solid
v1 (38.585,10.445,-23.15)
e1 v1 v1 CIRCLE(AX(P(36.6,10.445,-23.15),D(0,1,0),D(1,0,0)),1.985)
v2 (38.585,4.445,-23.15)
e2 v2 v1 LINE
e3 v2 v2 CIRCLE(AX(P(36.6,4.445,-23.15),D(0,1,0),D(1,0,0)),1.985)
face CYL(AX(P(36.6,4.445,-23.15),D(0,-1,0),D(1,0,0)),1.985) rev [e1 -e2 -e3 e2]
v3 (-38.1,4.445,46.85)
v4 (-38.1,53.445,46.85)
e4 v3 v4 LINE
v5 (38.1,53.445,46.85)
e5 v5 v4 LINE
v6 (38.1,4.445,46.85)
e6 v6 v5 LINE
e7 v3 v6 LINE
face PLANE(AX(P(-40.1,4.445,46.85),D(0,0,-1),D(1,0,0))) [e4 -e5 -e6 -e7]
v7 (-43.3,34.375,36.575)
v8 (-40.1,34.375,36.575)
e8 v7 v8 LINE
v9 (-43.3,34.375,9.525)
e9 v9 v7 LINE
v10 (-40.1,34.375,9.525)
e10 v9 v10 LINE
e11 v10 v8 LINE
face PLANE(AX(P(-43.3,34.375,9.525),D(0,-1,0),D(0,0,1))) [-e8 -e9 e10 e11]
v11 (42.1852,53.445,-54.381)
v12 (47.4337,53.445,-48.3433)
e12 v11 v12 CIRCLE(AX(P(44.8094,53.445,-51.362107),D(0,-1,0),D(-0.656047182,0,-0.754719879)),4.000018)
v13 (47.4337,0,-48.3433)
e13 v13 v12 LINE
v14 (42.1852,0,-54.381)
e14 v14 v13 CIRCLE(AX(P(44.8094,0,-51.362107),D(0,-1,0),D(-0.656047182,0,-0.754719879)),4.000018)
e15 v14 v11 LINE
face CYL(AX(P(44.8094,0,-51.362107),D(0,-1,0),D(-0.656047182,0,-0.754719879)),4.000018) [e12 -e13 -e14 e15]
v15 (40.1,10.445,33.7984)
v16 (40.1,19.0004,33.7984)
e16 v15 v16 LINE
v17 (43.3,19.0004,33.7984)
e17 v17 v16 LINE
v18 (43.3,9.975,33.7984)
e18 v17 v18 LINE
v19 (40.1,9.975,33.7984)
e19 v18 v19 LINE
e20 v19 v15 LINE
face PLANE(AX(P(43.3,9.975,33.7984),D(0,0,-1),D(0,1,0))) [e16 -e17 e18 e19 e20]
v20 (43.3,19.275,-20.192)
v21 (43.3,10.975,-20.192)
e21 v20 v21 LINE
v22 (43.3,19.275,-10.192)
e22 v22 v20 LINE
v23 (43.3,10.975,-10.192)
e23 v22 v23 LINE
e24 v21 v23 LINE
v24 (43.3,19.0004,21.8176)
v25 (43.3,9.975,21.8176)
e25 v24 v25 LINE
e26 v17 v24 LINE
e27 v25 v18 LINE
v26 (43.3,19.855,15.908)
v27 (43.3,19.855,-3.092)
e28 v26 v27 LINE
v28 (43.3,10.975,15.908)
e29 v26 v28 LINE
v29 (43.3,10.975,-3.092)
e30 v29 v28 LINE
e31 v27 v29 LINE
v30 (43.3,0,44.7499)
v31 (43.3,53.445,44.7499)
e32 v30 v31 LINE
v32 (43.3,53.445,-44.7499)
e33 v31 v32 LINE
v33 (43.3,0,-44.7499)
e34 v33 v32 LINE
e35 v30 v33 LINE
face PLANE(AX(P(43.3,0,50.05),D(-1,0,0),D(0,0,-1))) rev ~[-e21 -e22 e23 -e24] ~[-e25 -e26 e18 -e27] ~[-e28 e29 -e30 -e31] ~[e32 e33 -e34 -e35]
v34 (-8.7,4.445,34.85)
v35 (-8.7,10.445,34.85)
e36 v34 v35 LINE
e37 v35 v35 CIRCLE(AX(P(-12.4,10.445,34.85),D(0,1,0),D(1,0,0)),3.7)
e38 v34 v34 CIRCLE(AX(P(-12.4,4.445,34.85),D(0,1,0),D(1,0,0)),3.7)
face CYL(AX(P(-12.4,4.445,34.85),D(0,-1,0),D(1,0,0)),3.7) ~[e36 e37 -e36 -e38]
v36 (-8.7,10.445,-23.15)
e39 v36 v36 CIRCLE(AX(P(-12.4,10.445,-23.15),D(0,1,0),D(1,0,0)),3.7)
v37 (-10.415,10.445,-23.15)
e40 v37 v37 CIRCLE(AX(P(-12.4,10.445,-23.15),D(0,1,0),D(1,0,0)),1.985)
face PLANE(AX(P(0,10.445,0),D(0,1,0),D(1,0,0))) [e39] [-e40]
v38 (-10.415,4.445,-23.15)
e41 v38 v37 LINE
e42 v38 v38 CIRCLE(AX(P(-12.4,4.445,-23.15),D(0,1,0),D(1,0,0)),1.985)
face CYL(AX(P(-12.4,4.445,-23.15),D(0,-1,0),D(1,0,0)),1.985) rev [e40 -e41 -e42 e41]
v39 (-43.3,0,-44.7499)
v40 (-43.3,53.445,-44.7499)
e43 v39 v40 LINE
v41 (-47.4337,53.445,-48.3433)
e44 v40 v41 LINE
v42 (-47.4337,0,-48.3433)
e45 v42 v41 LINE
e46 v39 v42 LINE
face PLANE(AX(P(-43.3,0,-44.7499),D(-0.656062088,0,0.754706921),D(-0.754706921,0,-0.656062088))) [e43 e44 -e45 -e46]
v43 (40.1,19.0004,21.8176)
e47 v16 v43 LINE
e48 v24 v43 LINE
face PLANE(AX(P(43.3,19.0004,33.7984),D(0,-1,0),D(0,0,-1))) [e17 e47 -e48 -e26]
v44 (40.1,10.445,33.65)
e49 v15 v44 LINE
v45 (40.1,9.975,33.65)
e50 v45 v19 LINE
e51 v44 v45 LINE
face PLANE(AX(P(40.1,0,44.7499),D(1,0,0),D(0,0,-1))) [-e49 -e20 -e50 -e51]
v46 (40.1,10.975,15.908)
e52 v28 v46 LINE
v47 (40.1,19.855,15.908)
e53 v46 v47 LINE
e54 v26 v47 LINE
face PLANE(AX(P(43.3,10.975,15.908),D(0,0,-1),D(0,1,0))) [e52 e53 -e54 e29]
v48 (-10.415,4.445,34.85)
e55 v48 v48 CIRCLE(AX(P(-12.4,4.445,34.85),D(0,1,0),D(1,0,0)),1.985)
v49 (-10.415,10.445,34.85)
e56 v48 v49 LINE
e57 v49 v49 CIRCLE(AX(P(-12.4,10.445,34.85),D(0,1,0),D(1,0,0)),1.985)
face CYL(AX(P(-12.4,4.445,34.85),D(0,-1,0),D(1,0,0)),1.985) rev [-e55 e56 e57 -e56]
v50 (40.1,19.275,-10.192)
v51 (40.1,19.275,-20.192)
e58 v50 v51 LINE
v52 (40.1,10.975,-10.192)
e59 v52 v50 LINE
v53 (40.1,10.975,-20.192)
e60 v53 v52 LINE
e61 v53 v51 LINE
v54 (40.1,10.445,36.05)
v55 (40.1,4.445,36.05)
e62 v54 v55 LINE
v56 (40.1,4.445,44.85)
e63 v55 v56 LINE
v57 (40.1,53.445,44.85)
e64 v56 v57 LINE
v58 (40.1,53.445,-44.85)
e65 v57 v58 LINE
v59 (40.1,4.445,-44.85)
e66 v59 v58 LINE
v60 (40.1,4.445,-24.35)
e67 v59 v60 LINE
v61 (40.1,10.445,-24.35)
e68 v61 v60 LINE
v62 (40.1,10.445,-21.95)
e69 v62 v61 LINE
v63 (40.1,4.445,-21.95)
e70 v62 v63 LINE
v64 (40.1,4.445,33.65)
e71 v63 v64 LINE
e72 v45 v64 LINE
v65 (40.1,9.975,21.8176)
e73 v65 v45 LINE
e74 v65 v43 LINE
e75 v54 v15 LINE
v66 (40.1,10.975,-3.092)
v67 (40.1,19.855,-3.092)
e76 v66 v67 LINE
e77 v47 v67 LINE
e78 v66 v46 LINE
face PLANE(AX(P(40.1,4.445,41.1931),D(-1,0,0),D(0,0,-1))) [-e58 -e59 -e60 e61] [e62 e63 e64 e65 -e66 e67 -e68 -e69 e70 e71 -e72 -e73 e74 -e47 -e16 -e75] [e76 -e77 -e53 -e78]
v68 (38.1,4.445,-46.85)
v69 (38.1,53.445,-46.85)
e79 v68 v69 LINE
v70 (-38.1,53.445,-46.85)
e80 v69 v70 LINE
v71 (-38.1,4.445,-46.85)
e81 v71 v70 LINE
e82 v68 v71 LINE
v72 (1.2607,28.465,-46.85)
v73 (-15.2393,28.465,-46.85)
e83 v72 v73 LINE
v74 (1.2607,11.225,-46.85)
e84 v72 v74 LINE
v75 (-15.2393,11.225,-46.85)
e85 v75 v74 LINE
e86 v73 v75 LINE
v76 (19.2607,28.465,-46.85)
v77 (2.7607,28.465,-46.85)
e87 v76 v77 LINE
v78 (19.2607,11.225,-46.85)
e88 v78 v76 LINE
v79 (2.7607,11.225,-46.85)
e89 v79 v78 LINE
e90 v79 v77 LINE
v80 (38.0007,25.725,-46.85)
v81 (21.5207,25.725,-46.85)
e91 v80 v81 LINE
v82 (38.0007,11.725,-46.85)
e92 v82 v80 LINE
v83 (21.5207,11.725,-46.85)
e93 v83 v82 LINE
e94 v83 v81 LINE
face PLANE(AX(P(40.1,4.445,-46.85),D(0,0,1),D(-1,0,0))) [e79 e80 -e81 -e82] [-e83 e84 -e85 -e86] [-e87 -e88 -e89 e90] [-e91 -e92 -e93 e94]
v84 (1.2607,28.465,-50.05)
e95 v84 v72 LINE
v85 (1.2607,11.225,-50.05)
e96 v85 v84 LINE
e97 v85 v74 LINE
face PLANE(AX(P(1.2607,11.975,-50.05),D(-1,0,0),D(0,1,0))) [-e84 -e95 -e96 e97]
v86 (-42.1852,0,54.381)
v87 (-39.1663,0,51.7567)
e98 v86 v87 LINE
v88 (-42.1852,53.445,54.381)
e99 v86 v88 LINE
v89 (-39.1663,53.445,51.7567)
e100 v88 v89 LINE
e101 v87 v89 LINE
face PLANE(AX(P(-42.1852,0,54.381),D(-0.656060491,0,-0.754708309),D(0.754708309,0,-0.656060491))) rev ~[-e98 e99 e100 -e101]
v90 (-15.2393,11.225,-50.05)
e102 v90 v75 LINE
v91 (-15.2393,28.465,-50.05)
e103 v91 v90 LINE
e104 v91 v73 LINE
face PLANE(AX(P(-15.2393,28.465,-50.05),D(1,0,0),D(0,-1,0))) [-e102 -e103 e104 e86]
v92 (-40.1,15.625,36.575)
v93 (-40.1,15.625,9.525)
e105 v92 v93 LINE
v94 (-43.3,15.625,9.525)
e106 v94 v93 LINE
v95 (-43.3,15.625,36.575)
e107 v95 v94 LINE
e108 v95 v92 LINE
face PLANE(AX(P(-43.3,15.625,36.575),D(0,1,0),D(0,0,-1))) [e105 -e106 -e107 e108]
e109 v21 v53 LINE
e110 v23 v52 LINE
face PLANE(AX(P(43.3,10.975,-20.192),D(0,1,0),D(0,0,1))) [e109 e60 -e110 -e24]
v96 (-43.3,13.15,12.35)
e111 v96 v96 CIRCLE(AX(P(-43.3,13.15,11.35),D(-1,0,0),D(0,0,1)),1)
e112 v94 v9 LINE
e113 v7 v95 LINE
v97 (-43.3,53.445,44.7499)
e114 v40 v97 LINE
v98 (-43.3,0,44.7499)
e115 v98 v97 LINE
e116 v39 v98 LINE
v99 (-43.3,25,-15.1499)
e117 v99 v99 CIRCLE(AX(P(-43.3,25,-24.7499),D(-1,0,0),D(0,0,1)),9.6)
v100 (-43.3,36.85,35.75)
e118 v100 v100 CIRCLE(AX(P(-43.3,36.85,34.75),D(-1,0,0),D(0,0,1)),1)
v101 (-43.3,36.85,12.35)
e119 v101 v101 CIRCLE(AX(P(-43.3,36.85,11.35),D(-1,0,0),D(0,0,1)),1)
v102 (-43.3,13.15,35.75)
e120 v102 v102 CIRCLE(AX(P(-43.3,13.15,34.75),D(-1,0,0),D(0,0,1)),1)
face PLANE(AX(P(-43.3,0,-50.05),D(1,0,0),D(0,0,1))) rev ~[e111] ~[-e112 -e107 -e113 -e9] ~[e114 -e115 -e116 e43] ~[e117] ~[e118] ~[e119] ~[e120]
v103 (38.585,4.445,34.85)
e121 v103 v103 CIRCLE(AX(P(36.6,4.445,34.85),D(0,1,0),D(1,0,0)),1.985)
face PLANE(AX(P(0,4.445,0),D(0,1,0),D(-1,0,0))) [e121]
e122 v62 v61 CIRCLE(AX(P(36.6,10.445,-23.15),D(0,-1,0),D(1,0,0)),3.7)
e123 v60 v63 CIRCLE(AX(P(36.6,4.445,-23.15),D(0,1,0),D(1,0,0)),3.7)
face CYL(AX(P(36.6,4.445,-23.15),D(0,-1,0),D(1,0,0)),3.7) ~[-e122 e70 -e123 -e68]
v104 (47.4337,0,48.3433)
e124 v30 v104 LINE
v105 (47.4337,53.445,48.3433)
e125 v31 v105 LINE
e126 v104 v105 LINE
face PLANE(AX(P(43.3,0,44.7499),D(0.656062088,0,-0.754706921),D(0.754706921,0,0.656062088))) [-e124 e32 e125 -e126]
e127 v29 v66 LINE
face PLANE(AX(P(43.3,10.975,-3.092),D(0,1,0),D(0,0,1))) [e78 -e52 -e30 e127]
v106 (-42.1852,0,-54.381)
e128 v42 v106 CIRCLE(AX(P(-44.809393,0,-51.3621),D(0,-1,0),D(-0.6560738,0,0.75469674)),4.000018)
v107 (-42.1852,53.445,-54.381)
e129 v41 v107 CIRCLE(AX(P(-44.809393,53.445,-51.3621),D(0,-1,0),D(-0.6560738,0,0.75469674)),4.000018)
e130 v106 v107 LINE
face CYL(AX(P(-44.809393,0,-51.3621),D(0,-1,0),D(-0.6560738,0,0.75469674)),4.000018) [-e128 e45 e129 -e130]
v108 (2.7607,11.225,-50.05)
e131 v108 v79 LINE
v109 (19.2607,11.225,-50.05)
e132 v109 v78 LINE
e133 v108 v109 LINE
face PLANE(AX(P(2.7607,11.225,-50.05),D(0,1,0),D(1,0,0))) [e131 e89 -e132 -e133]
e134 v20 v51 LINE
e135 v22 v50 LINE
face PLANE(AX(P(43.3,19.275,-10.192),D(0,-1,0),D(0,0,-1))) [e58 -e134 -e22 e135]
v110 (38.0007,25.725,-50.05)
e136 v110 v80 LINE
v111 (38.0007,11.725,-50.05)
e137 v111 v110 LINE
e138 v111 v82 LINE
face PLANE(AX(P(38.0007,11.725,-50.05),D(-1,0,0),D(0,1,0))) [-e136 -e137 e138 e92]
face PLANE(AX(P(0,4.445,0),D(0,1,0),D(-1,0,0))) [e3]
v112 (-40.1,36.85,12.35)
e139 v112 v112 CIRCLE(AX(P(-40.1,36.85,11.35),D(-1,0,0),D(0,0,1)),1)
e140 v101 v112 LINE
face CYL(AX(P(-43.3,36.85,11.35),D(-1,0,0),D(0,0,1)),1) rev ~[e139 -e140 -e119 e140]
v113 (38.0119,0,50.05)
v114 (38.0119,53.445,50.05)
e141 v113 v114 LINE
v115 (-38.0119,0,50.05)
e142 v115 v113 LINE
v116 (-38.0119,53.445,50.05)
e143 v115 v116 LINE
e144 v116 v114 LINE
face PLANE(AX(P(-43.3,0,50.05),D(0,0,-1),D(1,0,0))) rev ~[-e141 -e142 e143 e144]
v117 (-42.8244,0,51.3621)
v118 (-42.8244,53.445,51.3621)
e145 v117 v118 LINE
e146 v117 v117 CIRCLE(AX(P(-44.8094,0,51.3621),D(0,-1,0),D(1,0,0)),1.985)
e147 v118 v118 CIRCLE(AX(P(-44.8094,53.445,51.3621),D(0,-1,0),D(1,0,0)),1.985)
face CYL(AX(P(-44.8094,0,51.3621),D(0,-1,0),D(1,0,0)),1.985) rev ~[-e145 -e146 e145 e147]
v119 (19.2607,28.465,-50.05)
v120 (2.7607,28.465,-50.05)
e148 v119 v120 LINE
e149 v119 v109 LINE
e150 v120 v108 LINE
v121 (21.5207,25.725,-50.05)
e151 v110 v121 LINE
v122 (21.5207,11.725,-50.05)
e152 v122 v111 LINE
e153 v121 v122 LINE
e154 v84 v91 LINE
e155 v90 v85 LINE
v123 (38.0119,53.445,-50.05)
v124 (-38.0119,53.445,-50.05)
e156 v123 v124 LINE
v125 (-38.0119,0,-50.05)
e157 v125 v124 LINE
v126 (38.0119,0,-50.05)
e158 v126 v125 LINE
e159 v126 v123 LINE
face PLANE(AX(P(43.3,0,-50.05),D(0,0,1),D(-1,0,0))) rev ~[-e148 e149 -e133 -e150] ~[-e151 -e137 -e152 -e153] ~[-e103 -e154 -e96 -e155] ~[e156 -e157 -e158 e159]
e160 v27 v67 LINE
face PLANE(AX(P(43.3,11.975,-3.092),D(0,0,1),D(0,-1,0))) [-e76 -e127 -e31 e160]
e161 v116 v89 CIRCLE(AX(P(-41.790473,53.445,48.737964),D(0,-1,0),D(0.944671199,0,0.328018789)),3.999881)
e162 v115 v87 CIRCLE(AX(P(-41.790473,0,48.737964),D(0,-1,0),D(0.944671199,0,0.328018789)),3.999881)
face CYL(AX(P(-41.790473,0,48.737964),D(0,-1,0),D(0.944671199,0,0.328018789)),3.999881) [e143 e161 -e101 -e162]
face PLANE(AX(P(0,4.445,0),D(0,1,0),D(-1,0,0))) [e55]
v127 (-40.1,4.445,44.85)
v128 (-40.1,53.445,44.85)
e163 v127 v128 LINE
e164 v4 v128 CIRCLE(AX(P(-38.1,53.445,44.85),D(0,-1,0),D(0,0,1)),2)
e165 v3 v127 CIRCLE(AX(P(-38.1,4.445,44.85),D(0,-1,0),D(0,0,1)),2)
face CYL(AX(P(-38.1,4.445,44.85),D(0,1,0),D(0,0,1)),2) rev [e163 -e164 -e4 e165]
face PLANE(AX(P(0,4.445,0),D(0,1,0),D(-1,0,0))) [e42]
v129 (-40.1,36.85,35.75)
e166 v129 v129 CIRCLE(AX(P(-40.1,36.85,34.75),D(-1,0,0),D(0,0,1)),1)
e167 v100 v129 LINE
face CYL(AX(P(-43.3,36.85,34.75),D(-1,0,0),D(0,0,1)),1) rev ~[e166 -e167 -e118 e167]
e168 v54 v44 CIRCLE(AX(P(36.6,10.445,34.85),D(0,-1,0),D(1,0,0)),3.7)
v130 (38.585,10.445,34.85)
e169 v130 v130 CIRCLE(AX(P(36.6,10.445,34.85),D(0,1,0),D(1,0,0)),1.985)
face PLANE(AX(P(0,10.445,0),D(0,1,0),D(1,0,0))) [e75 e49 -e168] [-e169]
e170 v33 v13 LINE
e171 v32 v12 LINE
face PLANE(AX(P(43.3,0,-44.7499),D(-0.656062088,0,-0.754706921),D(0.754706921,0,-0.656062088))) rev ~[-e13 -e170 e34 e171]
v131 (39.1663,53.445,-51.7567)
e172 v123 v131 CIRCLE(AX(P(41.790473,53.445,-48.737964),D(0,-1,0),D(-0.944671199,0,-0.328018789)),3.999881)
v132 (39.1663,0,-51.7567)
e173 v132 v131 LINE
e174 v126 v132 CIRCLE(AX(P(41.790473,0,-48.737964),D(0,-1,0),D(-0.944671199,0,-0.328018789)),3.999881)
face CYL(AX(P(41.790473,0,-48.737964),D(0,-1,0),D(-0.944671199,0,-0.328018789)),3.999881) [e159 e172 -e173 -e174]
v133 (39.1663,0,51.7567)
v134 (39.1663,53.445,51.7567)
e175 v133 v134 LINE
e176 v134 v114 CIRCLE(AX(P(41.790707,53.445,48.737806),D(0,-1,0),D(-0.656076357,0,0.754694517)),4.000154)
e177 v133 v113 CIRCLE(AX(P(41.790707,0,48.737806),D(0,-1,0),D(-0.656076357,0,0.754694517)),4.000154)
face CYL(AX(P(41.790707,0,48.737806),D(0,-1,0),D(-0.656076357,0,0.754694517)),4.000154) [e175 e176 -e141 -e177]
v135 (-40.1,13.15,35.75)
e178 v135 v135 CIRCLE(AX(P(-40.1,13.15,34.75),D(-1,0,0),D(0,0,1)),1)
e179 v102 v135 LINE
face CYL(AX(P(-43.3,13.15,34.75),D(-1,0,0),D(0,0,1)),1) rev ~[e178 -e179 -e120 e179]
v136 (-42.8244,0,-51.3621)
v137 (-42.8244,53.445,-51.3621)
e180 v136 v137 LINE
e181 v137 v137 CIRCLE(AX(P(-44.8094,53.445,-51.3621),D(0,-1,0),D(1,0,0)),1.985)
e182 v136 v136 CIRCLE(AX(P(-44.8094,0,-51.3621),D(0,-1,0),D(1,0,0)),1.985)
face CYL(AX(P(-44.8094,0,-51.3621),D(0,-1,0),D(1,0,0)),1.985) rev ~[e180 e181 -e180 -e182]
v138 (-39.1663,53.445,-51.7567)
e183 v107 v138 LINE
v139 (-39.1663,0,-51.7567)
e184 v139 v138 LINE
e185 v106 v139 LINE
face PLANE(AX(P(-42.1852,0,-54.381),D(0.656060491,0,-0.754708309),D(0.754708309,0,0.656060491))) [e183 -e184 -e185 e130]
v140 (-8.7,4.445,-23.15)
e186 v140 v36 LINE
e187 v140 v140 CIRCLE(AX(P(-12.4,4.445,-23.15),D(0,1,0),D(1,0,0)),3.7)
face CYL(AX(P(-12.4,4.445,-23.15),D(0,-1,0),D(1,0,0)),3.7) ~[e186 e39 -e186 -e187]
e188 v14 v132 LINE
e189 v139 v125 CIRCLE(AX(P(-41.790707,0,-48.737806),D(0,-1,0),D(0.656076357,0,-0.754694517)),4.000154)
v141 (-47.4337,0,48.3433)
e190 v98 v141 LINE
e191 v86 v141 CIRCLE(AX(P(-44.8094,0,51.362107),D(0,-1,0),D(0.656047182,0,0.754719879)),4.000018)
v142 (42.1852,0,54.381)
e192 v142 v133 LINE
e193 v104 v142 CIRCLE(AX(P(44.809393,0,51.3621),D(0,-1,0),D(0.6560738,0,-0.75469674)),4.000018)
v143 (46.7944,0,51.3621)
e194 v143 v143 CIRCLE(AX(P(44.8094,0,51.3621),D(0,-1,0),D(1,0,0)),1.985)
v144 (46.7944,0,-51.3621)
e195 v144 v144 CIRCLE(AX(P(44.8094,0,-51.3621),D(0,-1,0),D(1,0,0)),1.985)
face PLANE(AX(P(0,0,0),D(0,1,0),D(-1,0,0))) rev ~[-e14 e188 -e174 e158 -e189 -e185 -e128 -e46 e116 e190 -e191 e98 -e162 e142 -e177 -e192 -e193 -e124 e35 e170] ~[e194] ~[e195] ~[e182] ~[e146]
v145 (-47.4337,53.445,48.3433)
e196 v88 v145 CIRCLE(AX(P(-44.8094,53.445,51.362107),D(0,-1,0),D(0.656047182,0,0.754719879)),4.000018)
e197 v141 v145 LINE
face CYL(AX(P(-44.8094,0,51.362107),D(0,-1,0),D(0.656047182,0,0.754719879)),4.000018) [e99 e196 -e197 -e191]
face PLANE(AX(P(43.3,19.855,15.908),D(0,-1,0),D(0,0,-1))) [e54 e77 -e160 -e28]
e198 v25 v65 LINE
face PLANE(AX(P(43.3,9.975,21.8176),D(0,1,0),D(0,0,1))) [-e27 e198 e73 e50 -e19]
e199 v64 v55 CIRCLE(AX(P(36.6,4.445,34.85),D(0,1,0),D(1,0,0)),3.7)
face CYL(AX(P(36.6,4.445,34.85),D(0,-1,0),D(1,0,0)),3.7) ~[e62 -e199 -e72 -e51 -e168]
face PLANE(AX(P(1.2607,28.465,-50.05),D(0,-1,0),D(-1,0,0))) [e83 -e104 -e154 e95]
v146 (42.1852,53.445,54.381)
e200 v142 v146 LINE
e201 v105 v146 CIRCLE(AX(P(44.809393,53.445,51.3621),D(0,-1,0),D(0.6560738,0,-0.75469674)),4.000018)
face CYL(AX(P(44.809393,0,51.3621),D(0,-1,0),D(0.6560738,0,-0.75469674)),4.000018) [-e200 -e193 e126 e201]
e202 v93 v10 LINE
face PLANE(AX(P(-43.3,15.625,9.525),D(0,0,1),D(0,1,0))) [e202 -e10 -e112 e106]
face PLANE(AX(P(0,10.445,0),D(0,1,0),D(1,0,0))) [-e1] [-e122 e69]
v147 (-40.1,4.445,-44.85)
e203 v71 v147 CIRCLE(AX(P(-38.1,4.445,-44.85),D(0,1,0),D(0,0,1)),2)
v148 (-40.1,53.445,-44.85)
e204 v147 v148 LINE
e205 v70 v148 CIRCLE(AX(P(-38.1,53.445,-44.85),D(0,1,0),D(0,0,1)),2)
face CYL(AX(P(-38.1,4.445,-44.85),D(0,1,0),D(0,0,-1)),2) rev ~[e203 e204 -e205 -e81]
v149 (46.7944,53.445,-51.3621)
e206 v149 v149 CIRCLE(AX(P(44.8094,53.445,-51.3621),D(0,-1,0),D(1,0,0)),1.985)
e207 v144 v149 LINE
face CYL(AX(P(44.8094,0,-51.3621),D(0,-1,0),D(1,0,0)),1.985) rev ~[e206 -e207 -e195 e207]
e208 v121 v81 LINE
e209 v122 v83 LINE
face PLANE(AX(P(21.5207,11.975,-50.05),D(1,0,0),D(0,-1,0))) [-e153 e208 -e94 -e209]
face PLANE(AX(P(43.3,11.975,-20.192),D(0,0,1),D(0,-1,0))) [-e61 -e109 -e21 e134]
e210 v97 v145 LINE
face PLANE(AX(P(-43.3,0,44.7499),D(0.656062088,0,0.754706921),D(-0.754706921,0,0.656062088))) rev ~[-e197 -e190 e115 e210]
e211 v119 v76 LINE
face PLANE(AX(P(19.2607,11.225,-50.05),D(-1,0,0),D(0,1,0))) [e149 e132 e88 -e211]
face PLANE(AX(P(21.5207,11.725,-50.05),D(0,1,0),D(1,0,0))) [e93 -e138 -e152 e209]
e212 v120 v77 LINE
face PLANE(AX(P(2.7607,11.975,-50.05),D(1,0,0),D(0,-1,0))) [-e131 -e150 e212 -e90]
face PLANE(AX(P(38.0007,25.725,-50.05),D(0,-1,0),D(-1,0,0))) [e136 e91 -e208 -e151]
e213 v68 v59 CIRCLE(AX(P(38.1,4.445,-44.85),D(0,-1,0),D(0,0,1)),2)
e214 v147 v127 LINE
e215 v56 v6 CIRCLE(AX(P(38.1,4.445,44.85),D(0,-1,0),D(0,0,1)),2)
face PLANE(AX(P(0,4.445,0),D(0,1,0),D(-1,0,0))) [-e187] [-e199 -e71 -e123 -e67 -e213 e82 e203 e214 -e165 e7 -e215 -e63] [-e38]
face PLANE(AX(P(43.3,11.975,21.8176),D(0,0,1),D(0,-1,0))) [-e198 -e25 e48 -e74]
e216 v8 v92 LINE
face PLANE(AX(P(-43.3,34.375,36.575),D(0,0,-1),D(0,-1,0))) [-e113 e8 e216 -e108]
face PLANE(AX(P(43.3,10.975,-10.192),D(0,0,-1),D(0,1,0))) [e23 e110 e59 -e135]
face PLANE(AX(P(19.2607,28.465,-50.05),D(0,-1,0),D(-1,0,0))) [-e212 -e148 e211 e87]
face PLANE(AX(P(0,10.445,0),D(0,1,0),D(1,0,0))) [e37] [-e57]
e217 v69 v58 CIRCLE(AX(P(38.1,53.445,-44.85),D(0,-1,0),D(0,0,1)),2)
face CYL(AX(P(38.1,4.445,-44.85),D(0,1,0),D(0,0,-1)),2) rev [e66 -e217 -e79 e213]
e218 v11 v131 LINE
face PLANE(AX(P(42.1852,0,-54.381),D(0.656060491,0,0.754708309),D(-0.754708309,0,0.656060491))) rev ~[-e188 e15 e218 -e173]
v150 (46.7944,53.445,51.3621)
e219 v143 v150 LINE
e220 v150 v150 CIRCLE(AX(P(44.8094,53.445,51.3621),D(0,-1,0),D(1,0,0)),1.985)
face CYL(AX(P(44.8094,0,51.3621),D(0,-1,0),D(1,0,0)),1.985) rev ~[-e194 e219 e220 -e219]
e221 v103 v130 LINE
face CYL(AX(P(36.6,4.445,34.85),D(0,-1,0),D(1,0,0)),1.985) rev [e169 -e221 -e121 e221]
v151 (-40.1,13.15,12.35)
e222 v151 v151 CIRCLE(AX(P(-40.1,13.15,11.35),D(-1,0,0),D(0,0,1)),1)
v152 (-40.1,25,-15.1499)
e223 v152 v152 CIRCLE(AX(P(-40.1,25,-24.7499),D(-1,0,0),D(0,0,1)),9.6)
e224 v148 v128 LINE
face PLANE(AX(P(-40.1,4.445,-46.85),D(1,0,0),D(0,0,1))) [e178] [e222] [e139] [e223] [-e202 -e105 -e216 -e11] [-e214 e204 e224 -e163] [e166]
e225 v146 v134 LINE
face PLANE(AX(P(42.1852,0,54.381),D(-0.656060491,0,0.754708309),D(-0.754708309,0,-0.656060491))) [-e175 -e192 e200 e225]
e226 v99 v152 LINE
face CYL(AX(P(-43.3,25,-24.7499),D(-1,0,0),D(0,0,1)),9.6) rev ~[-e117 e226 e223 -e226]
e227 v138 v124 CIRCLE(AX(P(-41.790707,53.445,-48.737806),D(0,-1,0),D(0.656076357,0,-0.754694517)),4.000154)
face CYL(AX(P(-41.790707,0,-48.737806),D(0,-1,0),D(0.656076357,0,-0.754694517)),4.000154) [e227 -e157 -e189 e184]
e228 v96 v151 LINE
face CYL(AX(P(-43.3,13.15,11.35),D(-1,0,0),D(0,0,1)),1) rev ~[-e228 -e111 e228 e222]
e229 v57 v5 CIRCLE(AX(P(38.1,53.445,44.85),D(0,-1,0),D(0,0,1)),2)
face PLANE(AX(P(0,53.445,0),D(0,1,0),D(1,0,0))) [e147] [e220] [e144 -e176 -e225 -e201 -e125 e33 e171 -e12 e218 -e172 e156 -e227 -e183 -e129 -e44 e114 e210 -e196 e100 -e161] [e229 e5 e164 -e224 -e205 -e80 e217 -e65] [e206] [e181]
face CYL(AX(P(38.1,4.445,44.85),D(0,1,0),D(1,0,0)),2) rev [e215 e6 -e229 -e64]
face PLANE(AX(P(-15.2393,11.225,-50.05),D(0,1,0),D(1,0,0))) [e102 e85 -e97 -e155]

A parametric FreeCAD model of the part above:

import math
import FreeCAD as App
import Part
import Sketcher

V = App.Vector
Q = App.Units.Quantity


def edges_at(feature, points):
    """Names of the edges that pass closest to the given points."""
    edges = feature.Shape.Edges
    near = lambda p: min(range(len(edges)), key=lambda i: edges[i].distToShape(Part.Vertex(*p))[0])
    return sorted({f"Edge{near(p) + 1}" for p in points})


def add_polygon(sketch, points):
    """Adds a closed chain of lines whose ends are joined by coincident constraints."""
    first, n = sketch.GeometryCount, len(points)
    for a, b in zip(points, points[1:] + points[:1]):
        sketch.addGeometry(Part.LineSegment(App.Vector(*a, 0), App.Vector(*b, 0)), False)
    for i in range(n):
        sketch.addConstraint(Sketcher.Constraint("Coincident", first + i, 2, first + (i + 1) % n, 1))

doc = App.newDocument("Part")
params = doc.addObject("Spreadsheet::Sheet", "Params")
for row, (alias, value) in enumerate([
    ("sketch1_width", "86.6 mm"),
    ("sketch1_height", "100.1 mm"),
    ("pad1_length", "4.445 mm"),
    ("sketch2_width", "86.6 mm"),
    ("sketch2_height", "100.1 mm"),
    ("pad2_length", "49 mm"),
    ("sketch3_radius", "4 mm"),
    ("sketch3_diameter", "3.97 mm"),
    ("sketch3_length", "4 mm"),
    ("sketch3_height", "5.3 mm"),
    ("pad3_length", "53.445 mm"),
    ("fillet_radius", "2 mm"),
    ("sketch4_diameter", "7.4 mm"),
    ("sketch4_diameter2", "3.97 mm"),
    ("pad4_length", "6 mm"),
    ("sketch5_height", "10 mm"),
    ("sketch5_height2", "19 mm"),
    ("sketch5_width", "8.3 mm"),
    ("sketch5_width2", "8.88 mm"),
    ("pocket1_length", "3.2 mm"),
    ("sketch6_height", "14 mm"),
    ("sketch6_width", "16.5 mm"),
    ("sketch6_width2", "16.48 mm"),
    ("sketch6_height2", "17.24 mm"),
    ("pocket2_length", "3.2 mm"),
    ("sketch7_diameter", "19.2 mm"),
    ("pocket3_length", "3.2 mm"),
    ("sketch8_diameter", "2 mm"),
    ("sketch8_width", "18.75 mm"),
    ("sketch8_height", "27.05 mm"),
    ("pocket4_length", "3.2 mm"),
], start=1):
    params.set(f"A{row}", alias)
    params.set(f"B{row}", "=" + value)
    params.setAlias(f"B{row}", alias)

body = doc.addObject("PartDesign::Body", "Body")

# Sketch on XZ plane
sketch1 = body.newObject("Sketcher::SketchObject", "Sketch")
sketch1.AttachmentSupport = (doc.getObject("XZ_Plane"), [""])
sketch1.MapMode = "FlatFace"
add_polygon(sketch1, [(43, 50), (43, -50), (-43, -50), (-43, 50)])  # lines 0-3
sketch1.addConstraint([
    Sketcher.Constraint("Vertical", 0),
    Sketcher.Constraint("Horizontal", 1),
    Sketcher.Constraint("Vertical", 2),
    Sketcher.Constraint("Horizontal", 3),
    Sketcher.Constraint("Symmetric", 0, 2, 2, 2, -1, 1),
    Sketcher.Constraint("DistanceX", 1, 2, 1, 1, Q("86.6 mm")),
    Sketcher.Constraint("DistanceY", 0, 2, 0, 1, Q("100.1 mm")),
])
sketch1.setExpression("Constraints[9]", "Params.sketch1_width")
sketch1.setExpression("Constraints[10]", "Params.sketch1_height")
pad1 = body.newObject("PartDesign::Pad", "Pad")
pad1.Profile = sketch1
pad1.setExpression("Length", "Params.pad1_length")
pad1.Reversed = True

# Sketch on XZ plane
sketch2 = body.newObject("Sketcher::SketchObject", "Sketch001")
sketch2.AttachmentSupport = (doc.getObject("XZ_Plane"), [""])
sketch2.MapMode = "FlatFace"
sketch2.AttachmentOffset = App.Placement(V(0, 0, -4.445), App.Rotation())
add_polygon(sketch2, [(-43, 50), (43, 50), (43, -50), (-43, -50)])  # lines 0-3
add_polygon(sketch2, [(-40, -47), (40, -47), (40, 47), (-40, 47)])  # lines 4-7
sketch2.addConstraint([
    Sketcher.Constraint("Horizontal", 0),
    Sketcher.Constraint("Vertical", 1),
    Sketcher.Constraint("Horizontal", 2),
    Sketcher.Constraint("Vertical", 3),
    Sketcher.Constraint("Horizontal", 4),
    Sketcher.Constraint("Vertical", 5),
    Sketcher.Constraint("Horizontal", 6),
    Sketcher.Constraint("Vertical", 7),
    Sketcher.Constraint("Symmetric", 0, 2, 2, 2, -1, 1),
    Sketcher.Constraint("Symmetric", 4, 2, 6, 2, -1, 1),
    Sketcher.Constraint("DistanceX", 4, 2, 1, 2, Q("3.2 mm")),
    Sketcher.Constraint("DistanceY", 1, 2, 4, 2, Q("3.2 mm")),
    Sketcher.Constraint("DistanceX", 0, 1, 0, 2, Q("86.6 mm")),
    Sketcher.Constraint("DistanceY", 1, 2, 1, 1, Q("100.1 mm")),
])
sketch2.setExpression("Constraints[20]", "Params.sketch2_width")
sketch2.setExpression("Constraints[21]", "Params.sketch2_height")
pad2 = body.newObject("PartDesign::Pad", "Pad001")
pad2.Profile = sketch2
pad2.setExpression("Length", "Params.pad2_length")
pad2.Reversed = True

# Sketch on XZ plane
sketch3 = body.newObject("Sketcher::SketchObject", "Sketch002")
sketch3.AttachmentSupport = (doc.getObject("XZ_Plane"), [""])
sketch3.MapMode = "FlatFace"
sketch3.addGeometry([
    Part.LineSegment(V(38, 50, 0), V(43.3, 50, 0)),  # 0
    Part.LineSegment(V(43.3, 50, 0), V(43.3, 44.7, 0)),  # 1
    Part.LineSegment(V(43.3, 44.7, 0), V(47.4, 48.3, 0)),  # 2
    Part.ArcOfCircle(Part.Circle(V(44.8, 51.4, 0), V(0, 0, 1), 4), math.radians(-49), math.radians(131)),  # 3
    Part.LineSegment(V(42.2, 54.4, 0), V(39.2, 51.8, 0)),  # 4
    Part.ArcOfCircle(Part.Circle(V(41.8, 48.7, 0), V(0, 0, 1), 4), math.radians(131), math.radians(161)),  # 5
    Part.Circle(V(44.8, 51.4, 0), V(0, 0, 1), 2),  # 6
    Part.LineSegment(V(47.4, -48.3, 0), V(43.3, -44.7, 0)),  # 7
    Part.LineSegment(V(43.3, -44.7, 0), V(43.3, -50, 0)),  # 8
    Part.LineSegment(V(43.3, -50, 0), V(38, -50, 0)),  # 9
    Part.ArcOfCircle(Part.Circle(V(41.8, -48.7, 0), V(0, 0, 1), 4), math.radians(-161), math.radians(-131)),  # 10
    Part.LineSegment(V(39.2, -51.8, 0), V(42.2, -54.4, 0)),  # 11
    Part.ArcOfCircle(Part.Circle(V(44.8, -51.4, 0), V(0, 0, 1), 4), math.radians(-131), math.radians(49)),  # 12
    Part.Circle(V(44.8, -51.4, 0), V(0, 0, 1), 2),  # 13
    Part.LineSegment(V(-43.3, 50, 0), V(-38, 50, 0)),  # 14
    Part.ArcOfCircle(Part.Circle(V(-41.8, 48.7, 0), V(0, 0, 1), 4), math.radians(19), math.radians(49)),  # 15
    Part.LineSegment(V(-39.2, 51.8, 0), V(-42.2, 54.4, 0)),  # 16
    Part.ArcOfCircle(Part.Circle(V(-44.8, 51.4, 0), V(0, 0, 1), 4), math.radians(49), math.radians(229)),  # 17
    Part.LineSegment(V(-47.4, 48.3, 0), V(-43.3, 44.7, 0)),  # 18
    Part.LineSegment(V(-43.3, 44.7, 0), V(-43.3, 50, 0)),  # 19
    Part.Circle(V(-44.8, 51.4, 0), V(0, 0, 1), 2),  # 20
    Part.ArcOfCircle(Part.Circle(V(-41.8, -48.7, 0), V(0, 0, 1), 4), math.radians(-49), math.radians(-19)),  # 21
    Part.LineSegment(V(-38, -50, 0), V(-43.3, -50, 0)),  # 22
    Part.LineSegment(V(-43.3, -50, 0), V(-43.3, -44.7, 0)),  # 23
    Part.LineSegment(V(-43.3, -44.7, 0), V(-47.4, -48.3, 0)),  # 24
    Part.ArcOfCircle(Part.Circle(V(-44.8, -51.4, 0), V(0, 0, 1), 4), math.radians(131), math.radians(311)),  # 25
    Part.LineSegment(V(-42.2, -54.4, 0), V(-39.2, -51.8, 0)),  # 26
    Part.Circle(V(-44.8, -51.4, 0), V(0, 0, 1), 2),  # 27
], False)
sketch3.addConstraint([
    Sketcher.Constraint("Coincident", 0, 2, 1, 1),
    Sketcher.Constraint("Coincident", 1, 2, 2, 1),
    Sketcher.Constraint("Tangent", 2, 2, 3, 1),
    Sketcher.Constraint("Tangent", 3, 2, 4, 1),
    Sketcher.Constraint("Tangent", 4, 2, 5, 1),
    Sketcher.Constraint("Coincident", 5, 2, 0, 1),
    Sketcher.Constraint("Coincident", 7, 2, 8, 1),
    Sketcher.Constraint("Coincident", 8, 2, 9, 1),
    Sketcher.Constraint("Coincident", 9, 2, 10, 1),
    Sketcher.Constraint("Tangent", 10, 2, 11, 1),
    Sketcher.Constraint("Tangent", 11, 2, 12, 1),
    Sketcher.Constraint("Tangent", 12, 2, 7, 1),
    Sketcher.Constraint("Coincident", 14, 2, 15, 1),
    Sketcher.Constraint("Tangent", 15, 2, 16, 1),
    Sketcher.Constraint("Tangent", 16, 2, 17, 1),
    Sketcher.Constraint("Tangent", 17, 2, 18, 1),
    Sketcher.Constraint("Coincident", 18, 2, 19, 1),
    Sketcher.Constraint("Coincident", 19, 2, 14, 1),
    Sketcher.Constraint("Coincident", 21, 2, 22, 1),
    Sketcher.Constraint("Coincident", 22, 2, 23, 1),
    Sketcher.Constraint("Coincident", 23, 2, 24, 1),
    Sketcher.Constraint("Tangent", 24, 2, 25, 1),
    Sketcher.Constraint("Tangent", 25, 2, 26, 1),
    Sketcher.Constraint("Tangent", 26, 2, 21, 1),
    Sketcher.Constraint("Horizontal", 0),
    Sketcher.Constraint("Vertical", 1),
    Sketcher.Constraint("Vertical", 8),
    Sketcher.Constraint("Horizontal", 9),
    Sketcher.Constraint("Horizontal", 14),
    Sketcher.Constraint("Vertical", 19),
    Sketcher.Constraint("Horizontal", 22),
    Sketcher.Constraint("Vertical", 23),
    Sketcher.Constraint("Coincident", 6, 3, 3, 3),
    Sketcher.Constraint("Coincident", 13, 3, 12, 3),
    Sketcher.Constraint("Coincident", 20, 3, 17, 3),
    Sketcher.Constraint("Coincident", 27, 3, 25, 3),
    Sketcher.Constraint("Equal", 3, 5),
    Sketcher.Constraint("Equal", 5, 10),
    Sketcher.Constraint("Equal", 10, 12),
    Sketcher.Constraint("Equal", 6, 13),
    Sketcher.Constraint("Equal", 12, 15),
    Sketcher.Constraint("Equal", 15, 17),
    Sketcher.Constraint("Equal", 13, 20),
    Sketcher.Constraint("Equal", 17, 21),
    Sketcher.Constraint("Equal", 21, 25),
    Sketcher.Constraint("Equal", 20, 27),
    Sketcher.Constraint("Symmetric", 10, 3, 15, 3, -1, 1),
    Sketcher.Constraint("Symmetric", 12, 3, 17, 3, -1, 1),
    Sketcher.Constraint("Symmetric", 5, 3, 21, 3, -1, 1),
    Sketcher.Constraint("Symmetric", 3, 3, 25, 3, -1, 1),
    Sketcher.Constraint("Symmetric", 7, 2, 18, 2, -1, 1),
    Sketcher.Constraint("Symmetric", 0, 2, 22, 2, -1, 1),
    Sketcher.Constraint("Symmetric", 5, 3, 15, 3, -2),
    Sketcher.Constraint("Symmetric", 3, 3, 17, 3, -2),
    Sketcher.Constraint("Symmetric", 1, 2, 18, 2, -2),
    Sketcher.Constraint("Parallel", 2, 4),
    Sketcher.Constraint("Parallel", 4, 24),
    Sketcher.Constraint("Horizontal", 5, 2, 14, 2),
    Sketcher.Constraint("Horizontal", 9, 2, 21, 2),
    Sketcher.Constraint("Radius", 3, Q("4 mm")),
    Sketcher.Constraint("Diameter", 6, Q("3.97 mm")),
    Sketcher.Constraint("Angle", 2, Q("41.0002 deg")),
    Sketcher.Constraint("Distance", 4, Q("4 mm")),
    Sketcher.Constraint("DistanceY", 1, 2, 1, 1, Q("5.3 mm")),
    Sketcher.Constraint("DistanceX", -1, 1, 0, 2, Q("43.3 mm")),
    Sketcher.Constraint("DistanceY", 10, 3, 3, 3, Q("100.1 mm")),
    Sketcher.Constraint("DistanceX", 15, 3, 3, 3, Q("86.6 mm")),
])
sketch3.setExpression("Constraints[59]", "Params.sketch3_radius")
sketch3.setExpression("Constraints[60]", "Params.sketch3_diameter")
sketch3.setExpression("Constraints[62]", "Params.sketch3_length")
sketch3.setExpression("Constraints[63]", "Params.sketch3_height")
pad3 = body.newObject("PartDesign::Pad", "Pad002")
pad3.Profile = sketch3
pad3.setExpression("Length", "Params.pad3_length")
pad3.Reversed = True
doc.recompute()

fillet = body.newObject("PartDesign::Fillet", "Fillet")
fillet.Base = (pad3, edges_at(pad3, [
    (40.1, 28.945, -46.85),
    (-40.1, 28.945, -46.85),
    (-40.1, 28.945, 46.85),
    (40.1, 28.945, 46.85),
]))
fillet.setExpression("Radius", "Params.fillet_radius")

# Sketch on XZ plane
sketch4 = body.newObject("Sketcher::SketchObject", "Sketch003")
sketch4.AttachmentSupport = (doc.getObject("XZ_Plane"), [""])
sketch4.MapMode = "FlatFace"
sketch4.AttachmentOffset = App.Placement(V(0, 0, -4.445), App.Rotation())
sketch4.addGeometry([
    Part.Circle(V(36.6, 34.9, 0), V(0, 0, 1), 3.7),  # 0
    Part.Circle(V(36.6, 34.9, 0), V(0, 0, 1), 2),  # 1
    Part.Circle(V(36.6, -23.1, 0), V(0, 0, 1), 3.7),  # 2
    Part.Circle(V(36.6, -23.1, 0), V(0, 0, 1), 2),  # 3
    Part.Circle(V(-12.4, 34.9, 0), V(0, 0, 1), 3.7),  # 4
    Part.Circle(V(-12.4, 34.9, 0), V(0, 0, 1), 2),  # 5
    Part.Circle(V(-12.4, -23.1, 0), V(0, 0, 1), 3.7),  # 6
    Part.Circle(V(-12.4, -23.1, 0), V(0, 0, 1), 2),  # 7
], False)
sketch4.addConstraint([
    Sketcher.Constraint("Coincident", 1, 3, 0, 3),
    Sketcher.Constraint("Coincident", 3, 3, 2, 3),
    Sketcher.Constraint("Coincident", 5, 3, 4, 3),
    Sketcher.Constraint("Coincident", 7, 3, 6, 3),
    Sketcher.Constraint("Equal", 0, 2),
    Sketcher.Constraint("Equal", 1, 3),
    Sketcher.Constraint("Equal", 2, 4),
    Sketcher.Constraint("Equal", 3, 5),
    Sketcher.Constraint("Equal", 4, 6),
    Sketcher.Constraint("Equal", 5, 7),
    Sketcher.Constraint("Horizontal", 1, 3, 4, 3),
    Sketcher.Constraint("Horizontal", 3, 3, 6, 3),
    Sketcher.Constraint("Vertical", 1, 3, 2, 3),
    Sketcher.Constraint("Vertical", 5, 3, 6, 3),
    Sketcher.Constraint("Diameter", 0, Q("7.4 mm")),
    Sketcher.Constraint("Diameter", 1, Q("3.97 mm")),
    Sketcher.Constraint("DistanceY", 2, 3, 0, 3, Q("58 mm")),
    Sketcher.Constraint("DistanceX", 4, 3, 0, 3, Q("49 mm")),
    Sketcher.Constraint("DistanceX", -1, 1, 0, 3, Q("36.6 mm")),
    Sketcher.Constraint("DistanceY", -1, 1, 0, 3, Q("34.85 mm")),
])
sketch4.setExpression("Constraints[14]", "Params.sketch4_diameter")
sketch4.setExpression("Constraints[15]", "Params.sketch4_diameter2")
pad4 = body.newObject("PartDesign::Pad", "Pad003")
pad4.Profile = sketch4
pad4.setExpression("Length", "Params.pad4_length")
pad4.Reversed = True

# Sketch on YZ plane
sketch5 = body.newObject("Sketcher::SketchObject", "Sketch004")
sketch5.AttachmentSupport = (doc.getObject("YZ_Plane"), [""])
sketch5.MapMode = "FlatFace"
sketch5.AttachmentOffset = App.Placement(V(0, 0, 43.3), App.Rotation())
add_polygon(sketch5, [(11, -20), (19, -20), (19, -10), (11, -10)])  # lines 0-3
add_polygon(sketch5, [(10, 22), (19, 22), (19, 34), (10, 34)])  # lines 4-7
add_polygon(sketch5, [(11, -3), (20, -3), (20, 16), (11, 16)])  # lines 8-11
sketch5.addConstraint([
    Sketcher.Constraint("Horizontal", 0),
    Sketcher.Constraint("Vertical", 1),
    Sketcher.Constraint("Horizontal", 2),
    Sketcher.Constraint("Vertical", 3),
    Sketcher.Constraint("Horizontal", 4),
    Sketcher.Constraint("Vertical", 5),
    Sketcher.Constraint("Horizontal", 6),
    Sketcher.Constraint("Vertical", 7),
    Sketcher.Constraint("Horizontal", 8),
    Sketcher.Constraint("Vertical", 9),
    Sketcher.Constraint("Horizontal", 10),
    Sketcher.Constraint("Vertical", 11),
    Sketcher.Constraint("Vertical", 3, 2, 10, 2),
    Sketcher.Constraint("DistanceX", 6, 2, 2, 2, Q("1 mm")),
    Sketcher.Constraint("DistanceY", 1, 1, 1, 2, Q("10 mm")),
    Sketcher.Constraint("DistanceY", 9, 1, 9, 2, Q("19 mm")),
    Sketcher.Constraint("DistanceX", 0, 1, 0, 2, Q("8.3 mm")),
    Sketcher.Constraint("DistanceX", 8, 1, 8, 2, Q("8.88 mm")),
    Sketcher.Constraint("DistanceY", 1, 2, 8, 2, Q("7.1 mm")),
    Sketcher.Constraint("DistanceX", 4, 1, 4, 2, Q("9.0254 mm")),
    Sketcher.Constraint("DistanceY", 5, 1, 5, 2, Q("11.9808 mm")),
    Sketcher.Constraint("DistanceX", -1, 1, 0, 2, Q("19.275 mm")),
    Sketcher.Constraint("DistanceY", 0, 2, -1, 1, Q("20.192 mm")),
    Sketcher.Constraint("DistanceY", -1, 1, 4, 2, Q("21.8176 mm")),
])
sketch5.setExpression("Constraints[26]", "Params.sketch5_height")
sketch5.setExpression("Constraints[27]", "Params.sketch5_height2")
sketch5.setExpression("Constraints[28]", "Params.sketch5_width")
sketch5.setExpression("Constraints[29]", "Params.sketch5_width2")
pocket1 = body.newObject("PartDesign::Pocket", "Pocket")
pocket1.Profile = sketch5
pocket1.setExpression("Length", "Params.pocket1_length")

# Sketch on XY plane
sketch6 = body.newObject("Sketcher::SketchObject", "Sketch005")
sketch6.AttachmentSupport = (doc.getObject("XY_Plane"), [""])
sketch6.MapMode = "FlatFace"
sketch6.AttachmentOffset = App.Placement(V(0, 0, -50.05), App.Rotation())
add_polygon(sketch6, [(22, 12), (22, 26), (38, 26), (38, 12)])  # lines 0-3
add_polygon(sketch6, [(3, 11), (3, 28), (19, 28), (19, 11)])  # lines 4-7
add_polygon(sketch6, [(1, 28), (1, 11), (-15, 11), (-15, 28)])  # lines 8-11
sketch6.addConstraint([
    Sketcher.Constraint("Vertical", 0),
    Sketcher.Constraint("Horizontal", 1),
    Sketcher.Constraint("Vertical", 2),
    Sketcher.Constraint("Horizontal", 3),
    Sketcher.Constraint("Vertical", 4),
    Sketcher.Constraint("Horizontal", 5),
    Sketcher.Constraint("Vertical", 6),
    Sketcher.Constraint("Horizontal", 7),
    Sketcher.Constraint("Vertical", 8),
    Sketcher.Constraint("Horizontal", 9),
    Sketcher.Constraint("Vertical", 10),
    Sketcher.Constraint("Horizontal", 11),
    Sketcher.Constraint("Horizontal", 7, 2, 8, 2),
    Sketcher.Constraint("Horizontal", 5, 2, 10, 2),
    Sketcher.Constraint("Equal", 7, 9),
    Sketcher.Constraint("DistanceY", 0, 1, 0, 2, Q("14 mm")),
    Sketcher.Constraint("DistanceX", 5, 1, 5, 2, Q("16.5 mm")),
    Sketcher.Constraint("DistanceX", 8, 2, 6, 2, Q("18 mm")),
    Sketcher.Constraint("DistanceX", 1, 1, 1, 2, Q("16.48 mm")),
    Sketcher.Constraint("DistanceY", 4, 1, 4, 2, Q("17.24 mm")),
    Sketcher.Constraint("DistanceY", 6, 2, 3, 2, Q("0.5 mm")),
    Sketcher.Constraint("DistanceX", 4, 2, 0, 2, Q("18.76 mm")),
    Sketcher.Constraint("DistanceY", -1, 1, 0, 2, Q("25.725 mm")),
    Sketcher.Constraint("DistanceX", -1, 1, 0, 2, Q("21.5207 mm")),
])
sketch6.setExpression("Constraints[27]", "Params.sketch6_height")
sketch6.setExpression("Constraints[28]", "Params.sketch6_width")
sketch6.setExpression("Constraints[30]", "Params.sketch6_width2")
sketch6.setExpression("Constraints[31]", "Params.sketch6_height2")
pocket2 = body.newObject("PartDesign::Pocket", "Pocket001")
pocket2.Profile = sketch6
pocket2.setExpression("Length", "Params.pocket2_length")
pocket2.Reversed = True

# Sketch on YZ plane
sketch7 = body.newObject("Sketcher::SketchObject", "Sketch006")
sketch7.AttachmentSupport = (doc.getObject("YZ_Plane"), [""])
sketch7.MapMode = "FlatFace"
sketch7.AttachmentOffset = App.Placement(V(0, 0, -43.3), App.Rotation())
sketch7.addGeometry(Part.Circle(V(25, -25, 0), V(0, 0, 1), 10), False)
sketch7.addConstraint([
    Sketcher.Constraint("Diameter", 0, Q("19.2 mm")),
    Sketcher.Constraint("DistanceX", -1, 1, 0, 3, Q("25 mm")),
    Sketcher.Constraint("DistanceY", 0, 3, -1, 1, Q("24.75 mm")),
])
sketch7.setExpression("Constraints[0]", "Params.sketch7_diameter")
pocket3 = body.newObject("PartDesign::Pocket", "Pocket002")
pocket3.Profile = sketch7
pocket3.setExpression("Length", "Params.pocket3_length")
pocket3.Reversed = True

# Sketch on YZ plane
sketch8 = body.newObject("Sketcher::SketchObject", "Sketch007")
sketch8.AttachmentSupport = (doc.getObject("YZ_Plane"), [""])
sketch8.MapMode = "FlatFace"
sketch8.AttachmentOffset = App.Placement(V(0, 0, -43.3), App.Rotation())
add_polygon(sketch8, [(15.6, 9.5), (15.6, 36.6), (34.4, 36.6), (34.4, 9.5)])  # lines 0-3
sketch8.addGeometry(Part.Circle(V(36.9, 11.3, 0), V(0, 0, 1), 1), False)  # 4
sketch8.addGeometry(Part.Circle(V(36.9, 34.8, 0), V(0, 0, 1), 1), False)  # 5
sketch8.addGeometry(Part.Circle(V(13.2, 11.3, 0), V(0, 0, 1), 1), False)  # 6
sketch8.addGeometry(Part.Circle(V(13.2, 34.8, 0), V(0, 0, 1), 1), False)  # 7
sketch8.addConstraint([
    Sketcher.Constraint("Vertical", 0),
    Sketcher.Constraint("Horizontal", 1),
    Sketcher.Constraint("Vertical", 2),
    Sketcher.Constraint("Horizontal", 3),
    Sketcher.Constraint("Equal", 4, 5),
    Sketcher.Constraint("Equal", 5, 6),
    Sketcher.Constraint("Equal", 6, 7),
    Sketcher.Constraint("Horizontal", 4, 3, 6, 3),
    Sketcher.Constraint("Horizontal", 5, 3, 7, 3),
    Sketcher.Constraint("Vertical", 4, 3, 5, 3),
    Sketcher.Constraint("Vertical", 6, 3, 7, 3),
    Sketcher.Constraint("Diameter", 4, Q("2 mm")),
    Sketcher.Constraint("DistanceX", 1, 1, 1, 2, Q("18.75 mm")),
    Sketcher.Constraint("DistanceY", 0, 1, 0, 2, Q("27.05 mm")),
    Sketcher.Constraint("DistanceY", 4, 3, 5, 3, Q("23.4 mm")),
    Sketcher.Constraint("DistanceX", 6, 3, 4, 3, Q("23.7 mm")),
    Sketcher.Constraint("DistanceX", -1, 1, 4, 3, Q("36.85 mm")),
    Sketcher.Constraint("DistanceY", -1, 1, 4, 3, Q("11.35 mm")),
    Sketcher.Constraint("DistanceX", -1, 1, 0, 2, Q("15.625 mm")),
    Sketcher.Constraint("DistanceY", -1, 1, 0, 2, Q("36.575 mm")),
])
sketch8.setExpression("Constraints[15]", "Params.sketch8_diameter")
sketch8.setExpression("Constraints[16]", "Params.sketch8_width")
sketch8.setExpression("Constraints[17]", "Params.sketch8_height")
pocket4 = body.newObject("PartDesign::Pocket", "Pocket003")
pocket4.Profile = sketch8
pocket4.setExpression("Length", "Params.pocket4_length")
pocket4.Reversed = True

doc.recompute()
